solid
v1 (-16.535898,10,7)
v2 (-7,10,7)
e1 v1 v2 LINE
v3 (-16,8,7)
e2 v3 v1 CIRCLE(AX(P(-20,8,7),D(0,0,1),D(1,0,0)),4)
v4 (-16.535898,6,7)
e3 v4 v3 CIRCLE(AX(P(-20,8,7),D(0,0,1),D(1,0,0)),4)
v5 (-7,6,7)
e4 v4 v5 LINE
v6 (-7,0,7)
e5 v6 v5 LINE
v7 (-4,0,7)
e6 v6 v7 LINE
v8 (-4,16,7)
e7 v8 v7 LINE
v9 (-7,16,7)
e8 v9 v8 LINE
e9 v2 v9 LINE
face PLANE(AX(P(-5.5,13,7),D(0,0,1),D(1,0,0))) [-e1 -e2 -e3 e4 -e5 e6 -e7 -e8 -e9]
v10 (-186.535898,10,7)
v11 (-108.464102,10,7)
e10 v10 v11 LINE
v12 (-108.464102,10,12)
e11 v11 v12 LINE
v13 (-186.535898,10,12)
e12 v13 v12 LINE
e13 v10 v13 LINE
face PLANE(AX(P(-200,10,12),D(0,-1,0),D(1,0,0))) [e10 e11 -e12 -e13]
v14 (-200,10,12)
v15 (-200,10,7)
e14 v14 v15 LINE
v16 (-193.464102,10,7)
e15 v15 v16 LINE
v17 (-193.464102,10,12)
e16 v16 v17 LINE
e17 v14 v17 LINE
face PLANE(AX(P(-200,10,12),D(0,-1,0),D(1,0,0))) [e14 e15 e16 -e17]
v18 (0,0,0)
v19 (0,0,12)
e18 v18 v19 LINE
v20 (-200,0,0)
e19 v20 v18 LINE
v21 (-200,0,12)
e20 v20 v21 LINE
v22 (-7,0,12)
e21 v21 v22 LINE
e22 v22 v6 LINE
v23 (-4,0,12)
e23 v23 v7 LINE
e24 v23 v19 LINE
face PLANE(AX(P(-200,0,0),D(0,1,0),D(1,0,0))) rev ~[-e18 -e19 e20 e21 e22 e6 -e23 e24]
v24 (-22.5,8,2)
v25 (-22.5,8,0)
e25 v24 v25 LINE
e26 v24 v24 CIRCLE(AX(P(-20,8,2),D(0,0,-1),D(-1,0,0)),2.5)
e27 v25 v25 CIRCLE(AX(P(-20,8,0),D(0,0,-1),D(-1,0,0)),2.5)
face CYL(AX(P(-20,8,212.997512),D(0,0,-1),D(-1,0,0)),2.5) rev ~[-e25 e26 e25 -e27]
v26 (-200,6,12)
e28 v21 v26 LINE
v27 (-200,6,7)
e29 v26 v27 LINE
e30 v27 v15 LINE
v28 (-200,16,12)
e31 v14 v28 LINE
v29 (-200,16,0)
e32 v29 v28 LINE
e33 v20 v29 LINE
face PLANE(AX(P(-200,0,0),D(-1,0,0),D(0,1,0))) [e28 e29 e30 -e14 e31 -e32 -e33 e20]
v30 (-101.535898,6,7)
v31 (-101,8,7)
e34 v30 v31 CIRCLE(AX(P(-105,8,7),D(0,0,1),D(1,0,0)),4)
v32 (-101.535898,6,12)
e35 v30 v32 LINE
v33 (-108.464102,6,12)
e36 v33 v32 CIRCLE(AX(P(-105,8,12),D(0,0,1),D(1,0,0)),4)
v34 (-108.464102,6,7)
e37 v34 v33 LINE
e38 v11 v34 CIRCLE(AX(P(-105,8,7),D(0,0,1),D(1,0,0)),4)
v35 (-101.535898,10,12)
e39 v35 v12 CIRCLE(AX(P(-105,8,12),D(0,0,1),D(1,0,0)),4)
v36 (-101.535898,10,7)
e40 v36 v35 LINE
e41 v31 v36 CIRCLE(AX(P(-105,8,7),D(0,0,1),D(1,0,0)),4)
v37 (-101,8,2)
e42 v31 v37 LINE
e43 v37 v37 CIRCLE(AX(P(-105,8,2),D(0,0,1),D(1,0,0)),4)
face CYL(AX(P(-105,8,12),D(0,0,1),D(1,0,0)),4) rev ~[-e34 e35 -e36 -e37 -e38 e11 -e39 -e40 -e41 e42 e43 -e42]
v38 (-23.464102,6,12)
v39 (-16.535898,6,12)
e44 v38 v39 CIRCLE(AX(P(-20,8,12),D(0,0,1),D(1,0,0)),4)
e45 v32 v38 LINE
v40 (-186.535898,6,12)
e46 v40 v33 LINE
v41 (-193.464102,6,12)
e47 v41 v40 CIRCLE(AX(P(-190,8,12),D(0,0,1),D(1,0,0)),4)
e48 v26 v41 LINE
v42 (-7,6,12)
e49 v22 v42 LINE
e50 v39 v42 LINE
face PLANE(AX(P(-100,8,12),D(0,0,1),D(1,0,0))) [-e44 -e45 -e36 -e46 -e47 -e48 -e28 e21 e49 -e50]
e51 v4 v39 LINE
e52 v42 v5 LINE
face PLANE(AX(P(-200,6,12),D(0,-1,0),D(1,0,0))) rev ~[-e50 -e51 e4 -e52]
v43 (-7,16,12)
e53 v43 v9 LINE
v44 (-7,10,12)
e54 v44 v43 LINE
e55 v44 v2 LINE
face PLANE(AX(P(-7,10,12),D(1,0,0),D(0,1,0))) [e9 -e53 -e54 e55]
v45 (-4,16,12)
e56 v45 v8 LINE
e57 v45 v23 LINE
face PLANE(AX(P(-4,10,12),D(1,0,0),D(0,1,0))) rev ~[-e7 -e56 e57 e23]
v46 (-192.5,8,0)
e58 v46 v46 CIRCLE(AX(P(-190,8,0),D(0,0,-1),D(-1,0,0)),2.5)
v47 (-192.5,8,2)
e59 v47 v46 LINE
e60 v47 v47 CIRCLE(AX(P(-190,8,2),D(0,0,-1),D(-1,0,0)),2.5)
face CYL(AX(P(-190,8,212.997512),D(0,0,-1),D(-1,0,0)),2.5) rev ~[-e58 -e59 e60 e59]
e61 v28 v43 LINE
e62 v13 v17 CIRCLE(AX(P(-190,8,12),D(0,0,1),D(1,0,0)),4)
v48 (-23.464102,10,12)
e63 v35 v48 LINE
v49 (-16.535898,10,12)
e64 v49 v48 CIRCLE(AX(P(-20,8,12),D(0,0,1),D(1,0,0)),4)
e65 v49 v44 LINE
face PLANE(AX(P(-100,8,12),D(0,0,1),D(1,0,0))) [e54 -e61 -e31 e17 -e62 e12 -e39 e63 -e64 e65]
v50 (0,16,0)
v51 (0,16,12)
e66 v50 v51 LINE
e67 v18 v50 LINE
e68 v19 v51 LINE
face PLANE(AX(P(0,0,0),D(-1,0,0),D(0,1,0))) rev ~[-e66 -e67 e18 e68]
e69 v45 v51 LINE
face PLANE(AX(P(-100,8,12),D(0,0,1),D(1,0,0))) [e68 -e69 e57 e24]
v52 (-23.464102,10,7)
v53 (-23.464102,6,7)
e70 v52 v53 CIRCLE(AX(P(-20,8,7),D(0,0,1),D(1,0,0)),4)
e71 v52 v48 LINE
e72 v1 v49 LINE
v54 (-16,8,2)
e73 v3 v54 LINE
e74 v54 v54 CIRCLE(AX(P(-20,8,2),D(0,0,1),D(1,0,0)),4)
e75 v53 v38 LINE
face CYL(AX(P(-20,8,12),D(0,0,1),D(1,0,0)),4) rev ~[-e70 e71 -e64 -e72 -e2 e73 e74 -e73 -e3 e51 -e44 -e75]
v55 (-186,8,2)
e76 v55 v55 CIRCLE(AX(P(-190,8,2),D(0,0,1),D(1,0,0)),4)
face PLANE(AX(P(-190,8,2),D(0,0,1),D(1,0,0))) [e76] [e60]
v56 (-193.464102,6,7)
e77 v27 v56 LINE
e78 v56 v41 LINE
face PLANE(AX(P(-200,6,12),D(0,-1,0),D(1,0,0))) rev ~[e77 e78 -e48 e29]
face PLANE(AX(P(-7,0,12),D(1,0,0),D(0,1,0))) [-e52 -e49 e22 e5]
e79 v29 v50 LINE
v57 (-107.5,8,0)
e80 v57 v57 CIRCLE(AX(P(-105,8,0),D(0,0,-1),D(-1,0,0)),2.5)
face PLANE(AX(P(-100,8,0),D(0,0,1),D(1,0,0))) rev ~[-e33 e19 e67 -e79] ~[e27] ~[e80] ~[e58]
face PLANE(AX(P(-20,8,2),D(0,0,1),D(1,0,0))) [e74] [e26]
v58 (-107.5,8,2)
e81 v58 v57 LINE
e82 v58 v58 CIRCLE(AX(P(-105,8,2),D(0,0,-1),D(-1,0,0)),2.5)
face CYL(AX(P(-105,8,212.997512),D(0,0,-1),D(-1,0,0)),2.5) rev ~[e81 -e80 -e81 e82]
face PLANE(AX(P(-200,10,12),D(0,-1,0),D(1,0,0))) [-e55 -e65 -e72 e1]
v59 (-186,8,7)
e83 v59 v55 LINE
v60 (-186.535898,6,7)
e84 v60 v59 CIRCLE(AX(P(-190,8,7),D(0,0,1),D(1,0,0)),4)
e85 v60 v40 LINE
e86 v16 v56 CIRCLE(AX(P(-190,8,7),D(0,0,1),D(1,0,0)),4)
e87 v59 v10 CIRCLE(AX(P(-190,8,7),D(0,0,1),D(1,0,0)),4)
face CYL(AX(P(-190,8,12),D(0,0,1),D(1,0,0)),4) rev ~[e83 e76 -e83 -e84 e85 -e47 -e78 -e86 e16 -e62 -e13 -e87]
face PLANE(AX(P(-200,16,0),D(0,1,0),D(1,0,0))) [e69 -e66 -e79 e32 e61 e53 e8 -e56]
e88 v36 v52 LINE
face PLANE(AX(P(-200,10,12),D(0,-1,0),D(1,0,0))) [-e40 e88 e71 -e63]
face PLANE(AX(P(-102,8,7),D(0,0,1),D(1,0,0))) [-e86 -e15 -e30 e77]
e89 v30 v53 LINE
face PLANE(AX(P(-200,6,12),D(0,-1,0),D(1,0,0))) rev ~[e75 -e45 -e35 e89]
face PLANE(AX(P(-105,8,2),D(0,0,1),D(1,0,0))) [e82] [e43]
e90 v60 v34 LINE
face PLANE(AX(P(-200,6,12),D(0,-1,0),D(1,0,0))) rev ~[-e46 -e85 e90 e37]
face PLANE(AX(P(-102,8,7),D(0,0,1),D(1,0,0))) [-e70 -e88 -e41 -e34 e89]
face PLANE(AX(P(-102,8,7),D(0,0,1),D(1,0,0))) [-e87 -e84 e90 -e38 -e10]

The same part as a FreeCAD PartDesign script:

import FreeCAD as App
import Part
import Sketcher
from FreeCAD import Vector

doc = App.newDocument("Part")
body = doc.addObject("PartDesign::Body", "Body")

# Sketch on XY plane
sketch1 = doc.addObject("Sketcher::SketchObject", "Sketch")
body.addObject(sketch1)
sketch1.AttachmentSupport = (doc.XY_Plane, [""])
sketch1.MapMode = "FlatFace"
sketch1.addGeometry(Part.LineSegment(Vector(-200, 16, 0), Vector(-200, 0, 0)), False)
sketch1.addGeometry(Part.LineSegment(Vector(-200, 0, 0), Vector(0, 0, 0)), False)
sketch1.addGeometry(Part.LineSegment(Vector(0, 0, 0), Vector(0, 16, 0)), False)
sketch1.addGeometry(Part.LineSegment(Vector(0, 16, 0), Vector(-200, 16, 0)), False)
sketch1.addConstraint(Sketcher.Constraint("Coincident", 0, 2, 1, 1))
sketch1.addConstraint(Sketcher.Constraint("Coincident", 1, 2, 2, 1))
sketch1.addConstraint(Sketcher.Constraint("Coincident", 2, 2, 3, 1))
sketch1.addConstraint(Sketcher.Constraint("Coincident", 3, 2, 0, 1))
sketch1.addConstraint(Sketcher.Constraint("Vertical", 0))
sketch1.addConstraint(Sketcher.Constraint("Horizontal", 1))
sketch1.addConstraint(Sketcher.Constraint("Vertical", 2))
sketch1.addConstraint(Sketcher.Constraint("Horizontal", 3))
sketch1.addConstraint(Sketcher.Constraint("Coincident", 1, 2, -1, 1))
sketch1.addConstraint(Sketcher.Constraint("DistanceX", 1, 1, 1, 2, 200.0))
sketch1.addConstraint(Sketcher.Constraint("DistanceY", 0, 2, 0, 1, 16.0))
pad1 = doc.addObject("PartDesign::Pad", "Pad")
body.addObject(pad1)
pad1.Profile = sketch1
pad1.Length = 12

# Sketch on XY plane
sketch2 = doc.addObject("Sketcher::SketchObject", "Sketch001")
body.addObject(sketch2)
sketch2.AttachmentSupport = (doc.XY_Plane, [""])
sketch2.MapMode = "FlatFace"
sketch2.AttachmentOffset = App.Placement(Vector(0, 0, 12), App.Rotation())
sketch2.addGeometry(Part.LineSegment(Vector(-200, 10, 0), Vector(-200, 6, 0)), False)
sketch2.addGeometry(Part.LineSegment(Vector(-200, 6, 0), Vector(-4, 6, 0)), False)
sketch2.addGeometry(Part.LineSegment(Vector(-4, 6, 0), Vector(-4, 10, 0)), False)
sketch2.addGeometry(Part.LineSegment(Vector(-4, 10, 0), Vector(-200, 10, 0)), False)
sketch2.addConstraint(Sketcher.Constraint("Coincident", 0, 2, 1, 1))
sketch2.addConstraint(Sketcher.Constraint("Coincident", 1, 2, 2, 1))
sketch2.addConstraint(Sketcher.Constraint("Coincident", 2, 2, 3, 1))
sketch2.addConstraint(Sketcher.Constraint("Coincident", 3, 2, 0, 1))
sketch2.addConstraint(Sketcher.Constraint("Vertical", 0))
sketch2.addConstraint(Sketcher.Constraint("Horizontal", 1))
sketch2.addConstraint(Sketcher.Constraint("Vertical", 2))
sketch2.addConstraint(Sketcher.Constraint("Horizontal", 3))
sketch2.addConstraint(Sketcher.Constraint("DistanceX", 1, 1, 1, 2, 196.0))
sketch2.addConstraint(Sketcher.Constraint("DistanceY", 0, 2, 0, 1, 4.0))
sketch2.addConstraint(Sketcher.Constraint("DistanceX", 0, 2, -1, 1, 200.0))
sketch2.addConstraint(Sketcher.Constraint("DistanceY", -1, 1, 0, 2, 6.0))
pocket1 = doc.addObject("PartDesign::Pocket", "Pocket")
body.addObject(pocket1)
pocket1.Profile = sketch2
pocket1.Length = 5

# Sketch on XY plane
sketch3 = doc.addObject("Sketcher::SketchObject", "Sketch002")
body.addObject(sketch3)
sketch3.AttachmentSupport = (doc.XY_Plane, [""])
sketch3.MapMode = "FlatFace"
sketch3.AttachmentOffset = App.Placement(Vector(0, 0, 12), App.Rotation())
sketch3.addGeometry(Part.Circle(Vector(-190, 8, 0), Vector(0, 0, 1), 4), False)
sketch3.addGeometry(Part.Circle(Vector(-105, 8, 0), Vector(0, 0, 1), 4), False)
sketch3.addGeometry(Part.Circle(Vector(-20, 8, 0), Vector(0, 0, 1), 4), False)
sketch3.addConstraint(Sketcher.Constraint("Equal", 0, 1))
sketch3.addConstraint(Sketcher.Constraint("Equal", 1, 2))
sketch3.addConstraint(Sketcher.Constraint("Horizontal", 0, 3, 1, 3))
sketch3.addConstraint(Sketcher.Constraint("Horizontal", 1, 3, 2, 3))
sketch3.addConstraint(Sketcher.Constraint("Diameter", 0, 8.0))
sketch3.addConstraint(Sketcher.Constraint("DistanceX", 0, 3, -1, 1, 190.0))
sketch3.addConstraint(Sketcher.Constraint("DistanceY", -1, 1, 0, 3, 8.0))
sketch3.addConstraint(Sketcher.Constraint("DistanceX", 1, 3, -1, 1, 105.0))
sketch3.addConstraint(Sketcher.Constraint("DistanceX", 2, 3, -1, 1, 20.0))
pocket2 = doc.addObject("PartDesign::Pocket", "Pocket001")
body.addObject(pocket2)
pocket2.Profile = sketch3
pocket2.Length = 10

# Sketch on XY plane
sketch4 = doc.addObject("Sketcher::SketchObject", "Sketch003")
body.addObject(sketch4)
sketch4.AttachmentSupport = (doc.XY_Plane, [""])
sketch4.MapMode = "FlatFace"
sketch4.AttachmentOffset = App.Placement(Vector(0, 0, 12), App.Rotation())
sketch4.addGeometry(Part.Circle(Vector(-105, 8, 0), Vector(0, 0, 1), 2.5), False)
sketch4.addGeometry(Part.Circle(Vector(-190, 8, 0), Vector(0, 0, 1), 2.5), False)
sketch4.addGeometry(Part.Circle(Vector(-20, 8, 0), Vector(0, 0, 1), 2.5), False)
sketch4.addConstraint(Sketcher.Constraint("Equal", 0, 1))
sketch4.addConstraint(Sketcher.Constraint("Equal", 1, 2))
sketch4.addConstraint(Sketcher.Constraint("Horizontal", 0, 3, 1, 3))
sketch4.addConstraint(Sketcher.Constraint("Horizontal", 1, 3, 2, 3))
sketch4.addConstraint(Sketcher.Constraint("Diameter", 0, 5.0))
sketch4.addConstraint(Sketcher.Constraint("DistanceX", 0, 3, -1, 1, 105.0))
sketch4.addConstraint(Sketcher.Constraint("DistanceY", -1, 1, 0, 3, 8.0))
sketch4.addConstraint(Sketcher.Constraint("DistanceX", 1, 3, -1, 1, 190.0))
sketch4.addConstraint(Sketcher.Constraint("DistanceX", 2, 3, -1, 1, 20.0))
doc.recompute()
hole = doc.addObject("PartDesign::Hole", "Hole")
body.addObject(hole)
hole.Profile = sketch4
hole.ThreadType = "None"
hole.Diameter = 5
hole.DepthType = "ThroughAll"

# Sketch on XY plane
sketch5 = doc.addObject("Sketcher::SketchObject", "Sketch004")
body.addObject(sketch5)
sketch5.AttachmentSupport = (doc.XY_Plane, [""])
sketch5.MapMode = "FlatFace"
sketch5.AttachmentOffset = App.Placement(Vector(0, 0, 12), App.Rotation())
sketch5.addGeometry(Part.LineSegment(Vector(-7, 16, 0), Vector(-7, 10, 0)), False)
sketch5.addGeometry(Part.LineSegment(Vector(-7, 10, 0), Vector(-4, 10, 0)), False)
sketch5.addGeometry(Part.LineSegment(Vector(-4, 10, 0), Vector(-4, 16, 0)), False)
sketch5.addGeometry(Part.LineSegment(Vector(-4, 16, 0), Vector(-7, 16, 0)), False)
sketch5.addGeometry(Part.LineSegment(Vector(-7, 6, 0), Vector(-7, 0, 0)), False)
sketch5.addGeometry(Part.LineSegment(Vector(-7, 0, 0), Vector(-4, 0, 0)), False)
sketch5.addGeometry(Part.LineSegment(Vector(-4, 0, 0), Vector(-4, 6, 0)), False)
sketch5.addGeometry(Part.LineSegment(Vector(-4, 6, 0), Vector(-7, 6, 0)), False)
sketch5.addConstraint(Sketcher.Constraint("Coincident", 0, 2, 1, 1))
sketch5.addConstraint(Sketcher.Constraint("Coincident", 1, 2, 2, 1))
sketch5.addConstraint(Sketcher.Constraint("Coincident", 2, 2, 3, 1))
sketch5.addConstraint(Sketcher.Constraint("Coincident", 3, 2, 0, 1))
sketch5.addConstraint(Sketcher.Constraint("Coincident", 4, 2, 5, 1))
sketch5.addConstraint(Sketcher.Constraint("Coincident", 5, 2, 6, 1))
sketch5.addConstraint(Sketcher.Constraint("Coincident", 6, 2, 7, 1))
sketch5.addConstraint(Sketcher.Constraint("Coincident", 7, 2, 4, 1))
sketch5.addConstraint(Sketcher.Constraint("Vertical", 0))
sketch5.addConstraint(Sketcher.Constraint("Horizontal", 1))
sketch5.addConstraint(Sketcher.Constraint("Vertical", 2))
sketch5.addConstraint(Sketcher.Constraint("Horizontal", 3))
sketch5.addConstraint(Sketcher.Constraint("Vertical", 4))
sketch5.addConstraint(Sketcher.Constraint("Horizontal", 5))
sketch5.addConstraint(Sketcher.Constraint("Vertical", 6))
sketch5.addConstraint(Sketcher.Constraint("Horizontal", 7))
sketch5.addConstraint(Sketcher.Constraint("PointOnObject", 4, 2, -1))
sketch5.addConstraint(Sketcher.Constraint("Vertical", 3, 2, 4, 2))
sketch5.addConstraint(Sketcher.Constraint("Vertical", 2, 2, 5, 2))
sketch5.addConstraint(Sketcher.Constraint("Equal", 2, 4))
sketch5.addConstraint(Sketcher.Constraint("DistanceX", 1, 1, 1, 2, 3.0))
sketch5.addConstraint(Sketcher.Constraint("DistanceY", 0, 2, 0, 1, 6.0))
sketch5.addConstraint(Sketcher.Constraint("DistanceX", 0, 2, -1, 1, 7.0))
sketch5.addConstraint(Sketcher.Constraint("DistanceY", -1, 1, 0, 2, 10.0))
pocket3 = doc.addObject("PartDesign::Pocket", "Pocket002")
body.addObject(pocket3)
pocket3.Profile = sketch5
pocket3.Length = 5

doc.recompute()
